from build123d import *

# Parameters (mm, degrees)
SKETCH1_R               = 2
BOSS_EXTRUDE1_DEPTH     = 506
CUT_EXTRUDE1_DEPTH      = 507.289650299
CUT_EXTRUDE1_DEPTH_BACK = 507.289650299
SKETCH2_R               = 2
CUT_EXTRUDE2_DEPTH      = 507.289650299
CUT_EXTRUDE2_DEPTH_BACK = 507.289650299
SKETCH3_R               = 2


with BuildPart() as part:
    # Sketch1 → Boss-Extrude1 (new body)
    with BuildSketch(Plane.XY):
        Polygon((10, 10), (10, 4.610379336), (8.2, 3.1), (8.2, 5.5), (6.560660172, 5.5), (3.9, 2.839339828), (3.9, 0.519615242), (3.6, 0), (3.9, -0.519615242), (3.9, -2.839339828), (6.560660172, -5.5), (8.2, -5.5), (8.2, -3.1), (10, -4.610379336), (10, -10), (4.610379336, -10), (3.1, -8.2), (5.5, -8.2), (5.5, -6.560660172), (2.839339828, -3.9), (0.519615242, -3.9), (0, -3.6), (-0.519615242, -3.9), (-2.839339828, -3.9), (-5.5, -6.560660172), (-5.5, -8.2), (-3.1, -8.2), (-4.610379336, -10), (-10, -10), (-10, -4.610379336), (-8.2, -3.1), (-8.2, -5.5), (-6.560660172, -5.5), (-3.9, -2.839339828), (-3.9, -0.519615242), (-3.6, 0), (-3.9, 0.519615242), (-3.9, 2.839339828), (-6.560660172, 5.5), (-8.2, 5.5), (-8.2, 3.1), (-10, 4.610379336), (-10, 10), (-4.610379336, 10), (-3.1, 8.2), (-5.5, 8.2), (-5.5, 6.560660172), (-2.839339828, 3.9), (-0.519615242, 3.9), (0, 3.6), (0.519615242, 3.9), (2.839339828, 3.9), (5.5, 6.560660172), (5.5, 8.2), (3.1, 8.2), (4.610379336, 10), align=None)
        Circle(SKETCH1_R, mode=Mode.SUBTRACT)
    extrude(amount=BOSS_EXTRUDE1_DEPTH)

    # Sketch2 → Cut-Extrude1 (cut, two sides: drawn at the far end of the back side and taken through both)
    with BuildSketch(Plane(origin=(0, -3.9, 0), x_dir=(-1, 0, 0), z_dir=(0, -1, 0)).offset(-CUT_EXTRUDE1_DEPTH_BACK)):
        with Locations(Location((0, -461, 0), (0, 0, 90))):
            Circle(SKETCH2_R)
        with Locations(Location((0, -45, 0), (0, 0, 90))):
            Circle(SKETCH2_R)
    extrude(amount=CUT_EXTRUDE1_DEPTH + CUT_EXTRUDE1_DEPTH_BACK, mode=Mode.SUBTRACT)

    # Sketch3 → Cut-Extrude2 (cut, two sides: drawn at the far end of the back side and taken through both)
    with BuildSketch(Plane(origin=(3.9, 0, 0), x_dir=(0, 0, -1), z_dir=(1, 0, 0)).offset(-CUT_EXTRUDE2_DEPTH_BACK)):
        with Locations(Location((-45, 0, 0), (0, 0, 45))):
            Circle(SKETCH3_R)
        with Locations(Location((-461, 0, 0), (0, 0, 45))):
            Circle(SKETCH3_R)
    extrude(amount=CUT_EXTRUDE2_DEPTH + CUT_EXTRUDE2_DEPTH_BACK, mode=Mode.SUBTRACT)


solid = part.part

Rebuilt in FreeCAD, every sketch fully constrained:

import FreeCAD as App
import Part
import Sketcher
from FreeCAD import Vector
Q = App.Units.Quantity


def add_polygon(sketch, points):
    """Adds a closed chain of lines whose ends are joined by coincident constraints."""
    first, n = sketch.GeometryCount, len(points)
    for a, b in zip(points, points[1:] + points[:1]):
        sketch.addGeometry(Part.LineSegment(App.Vector(*a, 0), App.Vector(*b, 0)), False)
    for i in range(n):
        sketch.addConstraint(Sketcher.Constraint("Coincident", first + i, 2, first + (i + 1) % n, 1))

doc = App.newDocument("Part")
body = doc.addObject("PartDesign::Body", "Body")

# Sketch on XY plane
sketch1 = body.newObject("Sketcher::SketchObject", "Sketch")
sketch1.AttachmentSupport = (doc.getObject("XY_Plane"), [""])
sketch1.MapMode = "FlatFace"
add_polygon(sketch1, [(10, 4.610379), (10, 10), (4.610379, 10), (3.1, 8.2), (5.5, 8.2), (5.5, 6.56066), (2.83934, 3.9), (0.519615, 3.9), (0, 3.6), (-0.519615, 3.9), (-2.83934, 3.9), (-5.5, 6.56066), (-5.5, 8.2), (-3.1, 8.2), (-4.610379, 10), (-10, 10), (-10, 4.610379), (-8.2, 3.1), (-8.2, 5.5), (-6.56066, 5.5), (-3.9, 2.83934), (-3.9, 0.519615), (-3.6, 0), (-3.9, -0.519615), (-3.9, -2.83934), (-6.56066, -5.5), (-8.2, -5.5), (-8.2, -3.1), (-10, -4.610379), (-10, -10), (-4.610379, -10), (-3.1, -8.2), (-5.5, -8.2), (-5.5, -6.56066), (-2.83934, -3.9), (-0.519615, -3.9), (0, -3.6), (0.519615, -3.9), (2.83934, -3.9), (5.5, -6.56066), (5.5, -8.2), (3.1, -8.2), (4.610379, -10), (10, -10), (10, -4.610379), (8.2, -3.1), (8.2, -5.5), (6.56066, -5.5), (3.9, -2.83934), (3.9, -0.519615), (3.6, 0), (3.9, 0.519615), (3.9, 2.83934), (6.56066, 5.5), (8.2, 5.5), (8.2, 3.1)])  # lines 0-55
sketch1.addGeometry(Part.Circle(Vector(0, 0, 0), Vector(0, 0, 1), 2), False)  # 56
sketch1.addConstraint(Sketcher.Constraint("Vertical", 0))
sketch1.addConstraint(Sketcher.Constraint("Horizontal", 1))
sketch1.addConstraint(Sketcher.Constraint("Horizontal", 3))
sketch1.addConstraint(Sketcher.Constraint("Vertical", 4))
sketch1.addConstraint(Sketcher.Constraint("Horizontal", 6))
sketch1.addConstraint(Sketcher.Constraint("Horizontal", 9))
sketch1.addConstraint(Sketcher.Constraint("Vertical", 11))
sketch1.addConstraint(Sketcher.Constraint("Horizontal", 12))
sketch1.addConstraint(Sketcher.Constraint("Horizontal", 14))
sketch1.addConstraint(Sketcher.Constraint("Vertical", 15))
sketch1.addConstraint(Sketcher.Constraint("Vertical", 17))
sketch1.addConstraint(Sketcher.Constraint("Horizontal", 18))
sketch1.addConstraint(Sketcher.Constraint("Vertical", 20))
sketch1.addConstraint(Sketcher.Constraint("Vertical", 23))
sketch1.addConstraint(Sketcher.Constraint("Horizontal", 25))
sketch1.addConstraint(Sketcher.Constraint("Vertical", 26))
sketch1.addConstraint(Sketcher.Constraint("Vertical", 28))
sketch1.addConstraint(Sketcher.Constraint("Horizontal", 29))
sketch1.addConstraint(Sketcher.Constraint("Horizontal", 31))
sketch1.addConstraint(Sketcher.Constraint("Vertical", 32))
sketch1.addConstraint(Sketcher.Constraint("Horizontal", 34))
sketch1.addConstraint(Sketcher.Constraint("Horizontal", 37))
sketch1.addConstraint(Sketcher.Constraint("Vertical", 39))
sketch1.addConstraint(Sketcher.Constraint("Horizontal", 40))
sketch1.addConstraint(Sketcher.Constraint("Horizontal", 42))
sketch1.addConstraint(Sketcher.Constraint("Vertical", 43))
sketch1.addConstraint(Sketcher.Constraint("Vertical", 45))
sketch1.addConstraint(Sketcher.Constraint("Horizontal", 46))
sketch1.addConstraint(Sketcher.Constraint("Vertical", 48))
sketch1.addConstraint(Sketcher.Constraint("Vertical", 51))
sketch1.addConstraint(Sketcher.Constraint("Horizontal", 53))
sketch1.addConstraint(Sketcher.Constraint("Vertical", 54))
sketch1.addConstraint(Sketcher.Constraint("Coincident", 56, 3, -1, 1))
sketch1.addConstraint(Sketcher.Constraint("Symmetric", 0, 2, 28, 2, -1, 1))
sketch1.addConstraint(Sketcher.Constraint("Symmetric", 2, 2, 30, 2, -1, 1))
sketch1.addConstraint(Sketcher.Constraint("Symmetric", 4, 2, 32, 2, -1, 1))
sketch1.addConstraint(Sketcher.Constraint("Symmetric", 5, 2, 33, 2, -1, 1))
sketch1.addConstraint(Sketcher.Constraint("Symmetric", 7, 2, 35, 2, -1, 1))
sketch1.addConstraint(Sketcher.Constraint("Symmetric", 8, 2, 36, 2, -1, 1))
sketch1.addConstraint(Sketcher.Constraint("Symmetric", 10, 2, 38, 2, -1, 1))
sketch1.addConstraint(Sketcher.Constraint("Symmetric", 12, 2, 40, 2, -1, 1))
sketch1.addConstraint(Sketcher.Constraint("Symmetric", 13, 2, 41, 2, -1, 1))
sketch1.addConstraint(Sketcher.Constraint("Symmetric", 15, 2, 43, 2, -1, 1))
sketch1.addConstraint(Sketcher.Constraint("Symmetric", 16, 2, 44, 2, -1, 1))
sketch1.addConstraint(Sketcher.Constraint("Symmetric", 18, 2, 46, 2, -1, 1))
sketch1.addConstraint(Sketcher.Constraint("Symmetric", 19, 2, 47, 2, -1, 1))
sketch1.addConstraint(Sketcher.Constraint("Symmetric", 21, 2, 49, 2, -1, 1))
sketch1.addConstraint(Sketcher.Constraint("Symmetric", 22, 2, 50, 2, -1, 1))
sketch1.addConstraint(Sketcher.Constraint("Symmetric", 24, 2, 52, 2, -1, 1))
sketch1.addConstraint(Sketcher.Constraint("Symmetric", 26, 2, 54, 2, -1, 1))
sketch1.addConstraint(Sketcher.Constraint("Symmetric", 6, 2, 8, 2, -2))
sketch1.addConstraint(Sketcher.Constraint("Symmetric", 4, 2, 10, 2, -2))
sketch1.addConstraint(Sketcher.Constraint("Symmetric", 2, 2, 12, 2, -2))
sketch1.addConstraint(Sketcher.Constraint("Symmetric", 1, 2, 13, 2, -2))
sketch1.addConstraint(Sketcher.Constraint("Symmetric", 27, 2, 43, 2, -2))
sketch1.addConstraint(Sketcher.Constraint("Symmetric", 26, 2, 44, 2, -2))
sketch1.addConstraint(Sketcher.Constraint("Symmetric", 24, 2, 46, 2, -2))
sketch1.addConstraint(Sketcher.Constraint("Symmetric", 23, 2, 47, 2, -2))
sketch1.addConstraint(Sketcher.Constraint("PointOnObject", 7, 2, -2))
sketch1.addConstraint(Sketcher.Constraint("PointOnObject", 21, 2, -1))
sketch1.addConstraint(Sketcher.Constraint("Perpendicular", 5, 10))
sketch1.addConstraint(Sketcher.Constraint("Perpendicular", 2, 16))
sketch1.addConstraint(Sketcher.Constraint("Parallel", 10, 19))
sketch1.addConstraint(Sketcher.Constraint("Perpendicular", 7, 21))
sketch1.addConstraint(Sketcher.Constraint("Perpendicular", 8, 22))
sketch1.addConstraint(Sketcher.Constraint("Perpendicular", 19, 24))
sketch1.addConstraint(Sketcher.Constraint("Perpendicular", 16, 30))
sketch1.addConstraint(Sketcher.Constraint("Perpendicular", 21, 35))
sketch1.addConstraint(Sketcher.Constraint("Perpendicular", 33, 38))
sketch1.addConstraint(Sketcher.Constraint("Perpendicular", 35, 49))
sketch1.addConstraint(Sketcher.Constraint("Perpendicular", 47, 52))
sketch1.addConstraint(Sketcher.Constraint("Perpendicular", 41, 55))
sketch1.addConstraint(Sketcher.Constraint("Equal", 42, 0))
sketch1.addConstraint(Sketcher.Constraint("Equal", 53, 4))
sketch1.addConstraint(Sketcher.Constraint("Equal", 40, 17))
sketch1.addConstraint(Sketcher.Constraint("Equal", 37, 20))
sketch1.addConstraint(Sketcher.Constraint("Equal", 13, 16))
sketch1.addConstraint(Sketcher.Constraint("Equal", 10, 19))
sketch1.addConstraint(Sketcher.Constraint("Equal", 8, 21))
sketch1.addConstraint(Sketcher.Constraint("Diameter", 56, Q("4 mm")))
sketch1.addConstraint(Sketcher.Constraint("Angle", 2, Q("-130 deg")))
sketch1.addConstraint(Sketcher.Constraint("Angle", 7, Q("-150 deg")))
sketch1.addConstraint(Sketcher.Constraint("DistanceX", 3, 1, 3, 2, Q("2.4 mm")))
sketch1.addConstraint(Sketcher.Constraint("DistanceX", -1, 1, 0, 2, Q("10 mm")))
sketch1.addConstraint(Sketcher.Constraint("Distance", 7, Q("0.6 mm")))
sketch1.addConstraint(Sketcher.Constraint("DistanceX", -1, 1, 2, 2, Q("3.1 mm")))
sketch1.addConstraint(Sketcher.Constraint("DistanceY", -1, 1, 2, 2, Q("8.2 mm")))
sketch1.addConstraint(Sketcher.Constraint("DistanceY", -1, 1, 5, 2, Q("3.9 mm")))
sketch1.addConstraint(Sketcher.Constraint("DistanceX", 18, 1, 18, 2, Q("1.63934 mm")))
pad1 = body.newObject("PartDesign::Pad", "Pad")
pad1.Profile = sketch1
pad1.Length = 506

# Sketch on XZ plane
sketch2 = body.newObject("Sketcher::SketchObject", "Sketch001")
sketch2.AttachmentSupport = (doc.getObject("XZ_Plane"), [""])
sketch2.MapMode = "FlatFace"
sketch2.AttachmentOffset = App.Placement(Vector(0, 0, 3.9), App.Rotation())
sketch2.addGeometry(Part.Circle(Vector(0, 461, 0), Vector(0, 0, 1), 2), False)
sketch2.addGeometry(Part.Circle(Vector(0, 45, 0), Vector(0, 0, 1), 2), False)
sketch2.addConstraint(Sketcher.Constraint("Equal", 0, 1))
sketch2.addConstraint(Sketcher.Constraint("PointOnObject", 0, 3, -2))
sketch2.addConstraint(Sketcher.Constraint("PointOnObject", 1, 3, -2))
sketch2.addConstraint(Sketcher.Constraint("Diameter", 0, Q("4 mm")))
sketch2.addConstraint(Sketcher.Constraint("DistanceY", -1, 1, 0, 3, Q("461 mm")))
sketch2.addConstraint(Sketcher.Constraint("DistanceY", -1, 1, 1, 3, Q("45 mm")))
pocket1 = body.newObject("PartDesign::Pocket", "Pocket")
pocket1.Profile = sketch2
pocket1.Type = "ThroughAll"
pocket1.Midplane = True

# Sketch on YZ plane
sketch3 = body.newObject("Sketcher::SketchObject", "Sketch002")
sketch3.AttachmentSupport = (doc.getObject("YZ_Plane"), [""])
sketch3.MapMode = "FlatFace"
sketch3.AttachmentOffset = App.Placement(Vector(0, 0, 3.9), App.Rotation())
sketch3.addGeometry(Part.Circle(Vector(0, 45, 0), Vector(0, 0, 1), 2), False)
sketch3.addGeometry(Part.Circle(Vector(0, 461, 0), Vector(0, 0, 1), 2), False)
sketch3.addConstraint(Sketcher.Constraint("Equal", 0, 1))
sketch3.addConstraint(Sketcher.Constraint("PointOnObject", 0, 3, -2))
sketch3.addConstraint(Sketcher.Constraint("PointOnObject", 1, 3, -2))
sketch3.addConstraint(Sketcher.Constraint("Diameter", 0, Q("4 mm")))
sketch3.addConstraint(Sketcher.Constraint("DistanceY", -1, 1, 0, 3, Q("45 mm")))
sketch3.addConstraint(Sketcher.Constraint("DistanceY", -1, 1, 1, 3, Q("461 mm")))
pocket2 = body.newObject("PartDesign::Pocket", "Pocket001")
pocket2.Profile = sketch3
pocket2.Type = "ThroughAll"
pocket2.Midplane = True

doc.recompute()
